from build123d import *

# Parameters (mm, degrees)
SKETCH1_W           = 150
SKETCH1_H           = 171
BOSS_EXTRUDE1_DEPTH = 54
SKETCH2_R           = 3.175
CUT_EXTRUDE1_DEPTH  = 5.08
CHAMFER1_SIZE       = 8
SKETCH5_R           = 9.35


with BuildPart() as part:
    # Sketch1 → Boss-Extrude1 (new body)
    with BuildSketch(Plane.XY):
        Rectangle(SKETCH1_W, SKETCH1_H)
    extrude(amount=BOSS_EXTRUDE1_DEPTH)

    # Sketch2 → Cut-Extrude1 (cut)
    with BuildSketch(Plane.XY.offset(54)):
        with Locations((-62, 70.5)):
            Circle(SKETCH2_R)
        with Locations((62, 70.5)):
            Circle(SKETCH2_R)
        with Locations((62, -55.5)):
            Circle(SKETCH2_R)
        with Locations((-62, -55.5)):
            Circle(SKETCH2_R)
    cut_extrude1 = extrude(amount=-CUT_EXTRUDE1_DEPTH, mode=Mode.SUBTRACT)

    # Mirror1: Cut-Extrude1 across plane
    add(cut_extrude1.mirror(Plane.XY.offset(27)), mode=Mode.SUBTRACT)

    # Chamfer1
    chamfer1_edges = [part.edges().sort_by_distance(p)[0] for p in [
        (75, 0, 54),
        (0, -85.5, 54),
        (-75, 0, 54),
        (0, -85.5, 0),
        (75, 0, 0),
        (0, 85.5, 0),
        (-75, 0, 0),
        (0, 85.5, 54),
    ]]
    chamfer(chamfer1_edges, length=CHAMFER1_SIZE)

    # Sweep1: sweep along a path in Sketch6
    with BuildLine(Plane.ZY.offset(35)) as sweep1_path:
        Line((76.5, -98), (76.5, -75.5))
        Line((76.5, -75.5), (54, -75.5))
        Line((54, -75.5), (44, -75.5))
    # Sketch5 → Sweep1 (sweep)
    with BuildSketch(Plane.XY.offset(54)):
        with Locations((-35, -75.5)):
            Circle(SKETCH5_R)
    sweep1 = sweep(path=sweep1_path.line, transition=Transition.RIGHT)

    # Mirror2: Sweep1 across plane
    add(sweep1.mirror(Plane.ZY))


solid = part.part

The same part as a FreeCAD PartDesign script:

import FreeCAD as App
import Part
import Sketcher

V = App.Vector
Q = App.Units.Quantity


def edges_at(feature, points):
    """Names of the edges that pass closest to the given points."""
    edges = feature.Shape.Edges
    near = lambda p: min(range(len(edges)), key=lambda i: edges[i].distToShape(Part.Vertex(*p))[0])
    return sorted({f"Edge{near(p) + 1}" for p in points})

doc = App.newDocument("Part")
params = doc.addObject("Spreadsheet::Sheet", "Params")
for row, (alias, value) in enumerate([
    ("sketch1_width", "150 mm"),
    ("sketch1_height", "171 mm"),
    ("pad1_length", "54 mm"),
    ("sketch2_diameter", "6.35 mm"),
    ("pocket1_length", "5.08 mm"),
    ("chamfer_size", "8 mm"),
    ("sketch3_diameter", "18.7 mm"),
    ("sketch4_width", "22.5 mm"),
    ("sketch4_height", "32.5 mm"),
], start=1):
    params.set(f"A{row}", alias)
    params.set(f"B{row}", "=" + value)
    params.setAlias(f"B{row}", alias)

body = doc.addObject("PartDesign::Body", "Body")

sketch1 = body.newObject("Sketcher::SketchObject", "Sketch")
sketch1.AttachmentSupport = (doc.getObject("XY_Plane"), [""])
sketch1.MapMode = "FlatFace"
sketch1.addGeometry(Part.LineSegment(V(-75, 85.5, 0), V(-75, -85.5, 0)), False)
sketch1.addGeometry(Part.LineSegment(V(-75, -85.5, 0), V(75, -85.5, 0)), False)
sketch1.addGeometry(Part.LineSegment(V(75, -85.5, 0), V(75, 85.5, 0)), False)
sketch1.addGeometry(Part.LineSegment(V(75, 85.5, 0), V(-75, 85.5, 0)), False)
sketch1.addConstraint(Sketcher.Constraint("Coincident", 0, 2, 1, 1))
sketch1.addConstraint(Sketcher.Constraint("Coincident", 1, 2, 2, 1))
sketch1.addConstraint(Sketcher.Constraint("Coincident", 2, 2, 3, 1))
sketch1.addConstraint(Sketcher.Constraint("Coincident", 3, 2, 0, 1))
sketch1.addConstraint(Sketcher.Constraint("Vertical", 0))
sketch1.addConstraint(Sketcher.Constraint("Horizontal", 1))
sketch1.addConstraint(Sketcher.Constraint("Vertical", 2))
sketch1.addConstraint(Sketcher.Constraint("Horizontal", 3))
sketch1.addConstraint(Sketcher.Constraint("Symmetric", 0, 2, 2, 2, -1, 1))
sketch1.addConstraint(Sketcher.Constraint("DistanceX", 1, 1, 1, 2, Q("150 mm")))
sketch1.addConstraint(Sketcher.Constraint("DistanceY", 0, 2, 0, 1, Q("171 mm")))
sketch1.setExpression("Constraints[9]", "Params.sketch1_width")
sketch1.setExpression("Constraints[10]", "Params.sketch1_height")
pad1 = body.newObject("PartDesign::Pad", "Pad")
pad1.Profile = sketch1
pad1.setExpression("Length", "Params.pad1_length")

sketch2 = body.newObject("Sketcher::SketchObject", "Sketch001")
sketch2.AttachmentSupport = (doc.getObject("XY_Plane"), [""])
sketch2.MapMode = "FlatFace"
sketch2.AttachmentOffset = App.Placement(V(0, 0, 54), App.Rotation())
sketch2.addGeometry(Part.Circle(V(-62, 70.5, 0), V(0, 0, 1), 3.175), False)
sketch2.addGeometry(Part.Circle(V(62, 70.5, 0), V(0, 0, 1), 3.175), False)
sketch2.addGeometry(Part.Circle(V(62, -55.5, 0), V(0, 0, 1), 3.175), False)
sketch2.addGeometry(Part.Circle(V(-62, -55.5, 0), V(0, 0, 1), 3.175), False)
sketch2.addConstraint(Sketcher.Constraint("Equal", 0, 1))
sketch2.addConstraint(Sketcher.Constraint("Equal", 1, 2))
sketch2.addConstraint(Sketcher.Constraint("Equal", 2, 3))
sketch2.addConstraint(Sketcher.Constraint("Symmetric", 0, 3, 1, 3, -2))
sketch2.addConstraint(Sketcher.Constraint("Symmetric", 2, 3, 3, 3, -2))
sketch2.addConstraint(Sketcher.Constraint("Vertical", 1, 3, 2, 3))
sketch2.addConstraint(Sketcher.Constraint("Diameter", 0, Q("6.35 mm")))
sketch2.addConstraint(Sketcher.Constraint("DistanceX", 0, 3, -1, 1, Q("62 mm")))
sketch2.addConstraint(Sketcher.Constraint("DistanceY", 2, 3, 1, 3, Q("126 mm")))
sketch2.addConstraint(Sketcher.Constraint("DistanceY", -1, 1, 0, 3, Q("70.5 mm")))
sketch2.setExpression("Constraints[6]", "Params.sketch2_diameter")
pocket1 = body.newObject("PartDesign::Pocket", "Pocket")
pocket1.Profile = sketch2
pocket1.setExpression("Length", "Params.pocket1_length")
doc.recompute()

datumplane = body.newObject("PartDesign::Plane", "DatumPlane")
datumplane.AttachmentSupport = (doc.getObject("XY_Plane"), [""])
datumplane.MapMode = "FlatFace"
datumplane.AttachmentOffset = App.Placement(V(0, 0, 27), App.Rotation())
mirrored = body.newObject("PartDesign::Mirrored", "Mirrored")
mirrored.Originals = [pocket1]
mirrored.MirrorPlane = (datumplane, [""])
body.Tip = mirrored
doc.recompute()

chamfer = body.newObject("PartDesign::Chamfer", "Chamfer")
chamfer.Base = (mirrored, edges_at(mirrored, [
    (75, 0, 54),
    (0, -85.5, 54),
    (-75, 0, 54),
    (0, -85.5, 0),
    (75, 0, 0),
    (0, 85.5, 0),
    (-75, 0, 0),
    (0, 85.5, 54),
]))
chamfer.setExpression("Size", "Params.chamfer_size")

sketch3 = body.newObject("Sketcher::SketchObject", "Sketch002")
sketch3.AttachmentSupport = (doc.getObject("XY_Plane"), [""])
sketch3.MapMode = "FlatFace"
sketch3.AttachmentOffset = App.Placement(V(0, 0, 54), App.Rotation())
sketch3.addGeometry(Part.Circle(V(-35, -75.5, 0), V(0, 0, 1), 9.35), False)
sketch3.addConstraint(Sketcher.Constraint("Diameter", 0, Q("18.7 mm")))
sketch3.addConstraint(Sketcher.Constraint("DistanceX", 0, 3, -1, 1, Q("35 mm")))
sketch3.addConstraint(Sketcher.Constraint("DistanceY", 0, 3, -1, 1, Q("75.5 mm")))
sketch3.setExpression("Constraints[0]", "Params.sketch3_diameter")

sketch4 = body.newObject("Sketcher::SketchObject", "Sketch003")
sketch4.AttachmentSupport = (doc.getObject("YZ_Plane"), [""])
sketch4.MapMode = "FlatFace"
sketch4.AttachmentOffset = App.Placement(V(0, 0, -35), App.Rotation())
sketch4.addGeometry(Part.LineSegment(V(-98, 76.5, 0), V(-75.5, 76.5, 0)), False)
sketch4.addGeometry(Part.LineSegment(V(-75.5, 76.5, 0), V(-75.5, 44, 0)), False)
sketch4.addConstraint(Sketcher.Constraint("Coincident", 0, 2, 1, 1))
sketch4.addConstraint(Sketcher.Constraint("Horizontal", 0))
sketch4.addConstraint(Sketcher.Constraint("Vertical", 1))
sketch4.addConstraint(Sketcher.Constraint("DistanceX", 0, 1, 0, 2, Q("22.5 mm")))
sketch4.addConstraint(Sketcher.Constraint("DistanceY", 1, 2, 1, 1, Q("32.5 mm")))
sketch4.addConstraint(Sketcher.Constraint("DistanceX", 0, 1, -1, 1, Q("98 mm")))
sketch4.addConstraint(Sketcher.Constraint("DistanceY", -1, 1, 1, 2, Q("44 mm")))
sketch4.setExpression("Constraints[3]", "Params.sketch4_width")
sketch4.setExpression("Constraints[4]", "Params.sketch4_height")
doc.recompute()

additivepipe = body.newObject("PartDesign::AdditivePipe", "AdditivePipe")
additivepipe.Profile = sketch3
additivepipe.Spine = (sketch4, ["Edge1", "Edge2"])
additivepipe.Transition = "Right corner"
doc.recompute()

mirrored2 = body.newObject("PartDesign::Mirrored", "Mirrored001")
mirrored2.Originals = [additivepipe]
mirrored2.MirrorPlane = (doc.getObject("YZ_Plane"), [""])
body.Tip = mirrored2

doc.recompute()
